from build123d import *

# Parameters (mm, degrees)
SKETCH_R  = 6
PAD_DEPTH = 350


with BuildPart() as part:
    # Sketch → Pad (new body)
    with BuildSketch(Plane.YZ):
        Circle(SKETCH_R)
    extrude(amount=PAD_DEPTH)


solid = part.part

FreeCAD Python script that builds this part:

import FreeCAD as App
import Part
import Sketcher
from FreeCAD import Vector

doc = App.newDocument("Part")
body = doc.addObject("PartDesign::Body", "Body")

sketch1 = body.newObject("Sketcher::SketchObject", "Sketch")
sketch1.AttachmentSupport = (doc.getObject("YZ_Plane"), [""])
sketch1.MapMode = "FlatFace"
sketch1.addGeometry(Part.Circle(Vector(0, 0, 0), Vector(0, 0, 1), 6), False)
sketch1.addConstraint(Sketcher.Constraint("Coincident", 0, 3, -1, 1))
sketch1.addConstraint(Sketcher.Constraint("Diameter", 0, 12.0))
pad1 = body.newObject("PartDesign::Pad", "Pad")
pad1.Profile = sketch1
pad1.Length = 350

doc.recompute()
